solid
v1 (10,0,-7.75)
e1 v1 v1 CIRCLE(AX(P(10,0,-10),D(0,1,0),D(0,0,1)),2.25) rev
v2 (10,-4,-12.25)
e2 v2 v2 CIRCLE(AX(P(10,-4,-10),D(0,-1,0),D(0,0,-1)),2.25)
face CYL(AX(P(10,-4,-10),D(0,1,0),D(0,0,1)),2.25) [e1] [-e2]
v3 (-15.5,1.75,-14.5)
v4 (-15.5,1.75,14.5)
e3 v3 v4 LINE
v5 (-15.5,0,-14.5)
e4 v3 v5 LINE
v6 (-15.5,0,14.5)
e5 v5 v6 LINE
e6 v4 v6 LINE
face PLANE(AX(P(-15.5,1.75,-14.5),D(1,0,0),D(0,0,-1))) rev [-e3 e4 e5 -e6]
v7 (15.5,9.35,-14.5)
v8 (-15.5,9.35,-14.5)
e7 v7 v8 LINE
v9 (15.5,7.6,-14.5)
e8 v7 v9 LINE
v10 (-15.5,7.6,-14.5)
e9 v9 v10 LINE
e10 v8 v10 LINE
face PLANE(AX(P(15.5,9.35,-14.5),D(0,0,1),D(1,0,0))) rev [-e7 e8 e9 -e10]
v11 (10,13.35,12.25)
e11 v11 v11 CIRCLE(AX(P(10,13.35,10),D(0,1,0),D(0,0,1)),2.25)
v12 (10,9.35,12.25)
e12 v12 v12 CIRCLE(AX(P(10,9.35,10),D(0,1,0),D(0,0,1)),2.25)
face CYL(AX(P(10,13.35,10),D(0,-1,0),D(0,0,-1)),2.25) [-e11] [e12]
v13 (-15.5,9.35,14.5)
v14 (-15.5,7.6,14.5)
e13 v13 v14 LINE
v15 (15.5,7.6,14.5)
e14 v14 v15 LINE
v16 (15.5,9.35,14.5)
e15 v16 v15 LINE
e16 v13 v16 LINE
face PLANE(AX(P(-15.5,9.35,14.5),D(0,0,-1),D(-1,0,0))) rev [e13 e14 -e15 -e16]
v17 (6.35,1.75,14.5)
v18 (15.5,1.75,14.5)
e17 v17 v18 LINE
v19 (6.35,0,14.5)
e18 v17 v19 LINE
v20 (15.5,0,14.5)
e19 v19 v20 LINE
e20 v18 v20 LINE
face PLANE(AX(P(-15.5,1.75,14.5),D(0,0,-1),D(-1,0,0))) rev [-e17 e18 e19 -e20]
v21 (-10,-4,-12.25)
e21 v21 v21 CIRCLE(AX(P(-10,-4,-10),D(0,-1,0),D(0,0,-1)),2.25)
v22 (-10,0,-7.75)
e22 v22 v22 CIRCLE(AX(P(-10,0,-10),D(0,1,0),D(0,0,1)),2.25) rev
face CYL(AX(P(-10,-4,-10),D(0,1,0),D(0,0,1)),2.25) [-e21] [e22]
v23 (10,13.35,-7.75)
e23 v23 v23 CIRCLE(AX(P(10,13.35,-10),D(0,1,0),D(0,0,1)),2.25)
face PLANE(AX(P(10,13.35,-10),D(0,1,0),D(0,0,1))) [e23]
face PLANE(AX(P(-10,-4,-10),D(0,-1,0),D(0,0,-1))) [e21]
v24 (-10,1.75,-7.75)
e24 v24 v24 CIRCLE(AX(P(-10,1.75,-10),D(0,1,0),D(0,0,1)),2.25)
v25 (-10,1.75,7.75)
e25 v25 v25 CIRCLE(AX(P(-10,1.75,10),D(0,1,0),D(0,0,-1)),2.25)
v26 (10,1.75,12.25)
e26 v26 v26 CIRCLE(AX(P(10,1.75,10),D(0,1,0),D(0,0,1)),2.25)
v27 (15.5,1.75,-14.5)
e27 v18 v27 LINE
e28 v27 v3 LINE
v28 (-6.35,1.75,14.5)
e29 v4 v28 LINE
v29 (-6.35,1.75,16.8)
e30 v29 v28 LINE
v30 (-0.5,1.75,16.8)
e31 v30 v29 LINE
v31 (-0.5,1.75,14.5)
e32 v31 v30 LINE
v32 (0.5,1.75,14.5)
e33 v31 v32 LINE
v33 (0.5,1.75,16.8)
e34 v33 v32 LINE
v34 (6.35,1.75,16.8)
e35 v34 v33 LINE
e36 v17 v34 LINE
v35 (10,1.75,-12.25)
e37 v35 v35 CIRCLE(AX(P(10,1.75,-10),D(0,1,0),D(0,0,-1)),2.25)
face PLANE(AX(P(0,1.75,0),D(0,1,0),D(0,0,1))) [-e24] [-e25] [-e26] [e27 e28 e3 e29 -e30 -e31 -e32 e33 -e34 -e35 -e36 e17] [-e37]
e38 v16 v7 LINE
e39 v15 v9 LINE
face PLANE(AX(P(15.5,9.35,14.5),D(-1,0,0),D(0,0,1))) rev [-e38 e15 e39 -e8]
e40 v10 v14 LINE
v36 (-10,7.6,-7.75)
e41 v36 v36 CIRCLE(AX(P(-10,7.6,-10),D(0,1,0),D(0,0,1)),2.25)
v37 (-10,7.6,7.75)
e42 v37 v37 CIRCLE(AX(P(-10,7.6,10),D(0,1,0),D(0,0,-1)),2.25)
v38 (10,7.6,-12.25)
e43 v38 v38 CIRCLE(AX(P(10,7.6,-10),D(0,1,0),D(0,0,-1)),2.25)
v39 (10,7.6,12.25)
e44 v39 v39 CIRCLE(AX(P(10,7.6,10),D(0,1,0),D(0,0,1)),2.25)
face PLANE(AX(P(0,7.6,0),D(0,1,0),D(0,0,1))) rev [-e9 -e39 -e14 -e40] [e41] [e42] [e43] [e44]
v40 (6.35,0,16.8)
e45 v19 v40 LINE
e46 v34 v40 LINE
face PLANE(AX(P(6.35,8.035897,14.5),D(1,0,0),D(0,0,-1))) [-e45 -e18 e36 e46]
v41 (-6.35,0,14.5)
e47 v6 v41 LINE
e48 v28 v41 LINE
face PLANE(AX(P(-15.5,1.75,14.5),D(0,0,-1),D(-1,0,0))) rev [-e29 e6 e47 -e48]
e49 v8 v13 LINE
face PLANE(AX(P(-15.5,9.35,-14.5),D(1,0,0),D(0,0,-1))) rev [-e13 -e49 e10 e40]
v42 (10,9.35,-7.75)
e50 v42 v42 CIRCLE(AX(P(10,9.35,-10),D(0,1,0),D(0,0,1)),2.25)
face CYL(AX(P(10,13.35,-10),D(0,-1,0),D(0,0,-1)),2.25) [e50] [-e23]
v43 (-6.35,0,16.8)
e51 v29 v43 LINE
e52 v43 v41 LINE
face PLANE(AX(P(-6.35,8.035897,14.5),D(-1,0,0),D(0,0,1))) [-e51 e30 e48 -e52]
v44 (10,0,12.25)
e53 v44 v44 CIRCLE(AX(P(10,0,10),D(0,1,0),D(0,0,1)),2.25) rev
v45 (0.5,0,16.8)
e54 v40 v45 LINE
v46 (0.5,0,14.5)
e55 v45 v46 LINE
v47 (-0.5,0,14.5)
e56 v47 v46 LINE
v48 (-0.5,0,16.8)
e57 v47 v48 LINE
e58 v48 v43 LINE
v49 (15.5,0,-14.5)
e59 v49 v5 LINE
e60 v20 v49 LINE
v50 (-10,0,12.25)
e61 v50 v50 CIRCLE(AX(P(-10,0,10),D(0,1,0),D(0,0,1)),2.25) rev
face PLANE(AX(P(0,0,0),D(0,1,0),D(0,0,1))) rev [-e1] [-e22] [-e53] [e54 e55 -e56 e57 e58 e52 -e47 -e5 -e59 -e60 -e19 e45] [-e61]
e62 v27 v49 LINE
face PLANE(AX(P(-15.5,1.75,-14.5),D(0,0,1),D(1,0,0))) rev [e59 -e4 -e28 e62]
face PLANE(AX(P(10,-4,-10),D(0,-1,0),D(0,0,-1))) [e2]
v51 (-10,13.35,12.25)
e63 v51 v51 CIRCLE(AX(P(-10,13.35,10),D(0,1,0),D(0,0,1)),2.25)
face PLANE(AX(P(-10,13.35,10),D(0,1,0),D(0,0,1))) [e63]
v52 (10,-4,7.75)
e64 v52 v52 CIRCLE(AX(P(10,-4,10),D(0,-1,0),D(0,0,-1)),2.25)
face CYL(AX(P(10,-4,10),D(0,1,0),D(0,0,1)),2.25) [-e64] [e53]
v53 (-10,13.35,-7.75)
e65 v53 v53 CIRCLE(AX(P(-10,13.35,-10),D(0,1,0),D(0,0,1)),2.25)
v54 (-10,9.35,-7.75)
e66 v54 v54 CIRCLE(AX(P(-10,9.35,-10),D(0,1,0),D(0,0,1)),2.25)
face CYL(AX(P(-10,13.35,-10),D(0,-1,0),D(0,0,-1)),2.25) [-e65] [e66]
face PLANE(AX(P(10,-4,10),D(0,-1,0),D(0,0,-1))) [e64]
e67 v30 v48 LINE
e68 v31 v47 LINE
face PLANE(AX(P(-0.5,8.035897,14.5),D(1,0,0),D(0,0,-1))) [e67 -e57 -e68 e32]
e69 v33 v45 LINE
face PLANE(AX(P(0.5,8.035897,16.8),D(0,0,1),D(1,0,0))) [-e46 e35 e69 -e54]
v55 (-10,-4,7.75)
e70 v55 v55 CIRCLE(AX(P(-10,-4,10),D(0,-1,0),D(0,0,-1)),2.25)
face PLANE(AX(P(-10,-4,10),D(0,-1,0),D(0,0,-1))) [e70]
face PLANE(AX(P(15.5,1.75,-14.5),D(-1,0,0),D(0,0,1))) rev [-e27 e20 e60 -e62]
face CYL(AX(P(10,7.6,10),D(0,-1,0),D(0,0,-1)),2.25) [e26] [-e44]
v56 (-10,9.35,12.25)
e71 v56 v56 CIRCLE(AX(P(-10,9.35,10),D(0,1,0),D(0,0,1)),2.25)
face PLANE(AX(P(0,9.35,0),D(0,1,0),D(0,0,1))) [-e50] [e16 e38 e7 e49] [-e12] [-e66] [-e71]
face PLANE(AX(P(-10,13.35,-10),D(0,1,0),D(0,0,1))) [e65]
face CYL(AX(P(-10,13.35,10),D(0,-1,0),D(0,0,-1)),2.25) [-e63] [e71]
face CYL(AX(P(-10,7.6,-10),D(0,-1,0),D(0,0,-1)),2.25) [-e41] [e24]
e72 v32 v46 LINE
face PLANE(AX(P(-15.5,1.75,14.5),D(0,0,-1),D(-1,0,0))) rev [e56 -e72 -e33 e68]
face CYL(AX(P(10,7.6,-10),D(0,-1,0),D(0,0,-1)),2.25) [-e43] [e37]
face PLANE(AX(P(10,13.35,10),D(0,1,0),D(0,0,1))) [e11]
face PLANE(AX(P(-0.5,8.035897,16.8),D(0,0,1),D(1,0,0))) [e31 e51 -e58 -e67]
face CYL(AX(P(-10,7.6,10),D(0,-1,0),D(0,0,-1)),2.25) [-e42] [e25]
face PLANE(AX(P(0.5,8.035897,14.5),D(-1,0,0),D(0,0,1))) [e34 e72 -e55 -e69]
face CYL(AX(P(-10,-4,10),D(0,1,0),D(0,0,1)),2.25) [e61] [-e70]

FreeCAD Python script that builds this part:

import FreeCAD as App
import Part
import Sketcher

V = App.Vector


def add_polygon(sketch, points):
    """Adds a closed chain of lines whose ends are joined by coincident constraints."""
    first, n = sketch.GeometryCount, len(points)
    for a, b in zip(points, points[1:] + points[:1]):
        sketch.addGeometry(Part.LineSegment(App.Vector(*a, 0), App.Vector(*b, 0)), False)
    for i in range(n):
        sketch.addConstraint(Sketcher.Constraint("Coincident", first + i, 2, first + (i + 1) % n, 1))

doc = App.newDocument("Part")
body = doc.addObject("PartDesign::Body", "Body")

# Sketch on XZ plane
sketch1 = body.newObject("Sketcher::SketchObject", "Sketch")
sketch1.AttachmentSupport = (doc.getObject("XZ_Plane"), [""])
sketch1.MapMode = "FlatFace"
add_polygon(sketch1, [(-16, -14), (-16, 14), (16, 14), (16, -14)])  # lines 0-3
sketch1.addConstraint([
    Sketcher.Constraint("Vertical", 0),
    Sketcher.Constraint("Horizontal", 1),
    Sketcher.Constraint("Vertical", 2),
    Sketcher.Constraint("Horizontal", 3),
    Sketcher.Constraint("Symmetric", 0, 2, 2, 2, -1, 1),
    Sketcher.Constraint("DistanceX", 1, 1, 1, 2, 31.0),
    Sketcher.Constraint("DistanceY", 0, 1, 0, 2, 29.0),
])
pad1 = body.newObject("PartDesign::Pad", "Pad")
pad1.Profile = sketch1
pad1.Length = 1.75
pad1.Reversed = True

# Sketch on XZ plane
sketch2 = body.newObject("Sketcher::SketchObject", "Sketch001")
sketch2.AttachmentSupport = (doc.getObject("XZ_Plane"), [""])
sketch2.MapMode = "FlatFace"
sketch2.AttachmentOffset = App.Placement(V(0, 0, -1.75), App.Rotation())
sketch2.addGeometry([
    Part.Circle(V(-10, -10, 0), V(0, 0, 1), 2.2),
    Part.Circle(V(10, -10, 0), V(0, 0, 1), 2.2),
    Part.Circle(V(10, 10, 0), V(0, 0, 1), 2.2),
    Part.Circle(V(-10, 10, 0), V(0, 0, 1), 2.2),
], False)
sketch2.addConstraint([
    Sketcher.Constraint("Equal", 0, 1),
    Sketcher.Constraint("Equal", 1, 2),
    Sketcher.Constraint("Equal", 2, 3),
    Sketcher.Constraint("Symmetric", 0, 3, 2, 3, -1, 1),
    Sketcher.Constraint("Symmetric", 1, 3, 3, 3, -1, 1),
    Sketcher.Constraint("Symmetric", 0, 3, 1, 3, -2),
    Sketcher.Constraint("Diameter", 0, 4.5),
    Sketcher.Constraint("DistanceX", 0, 3, -1, 1, 10.0),
    Sketcher.Constraint("DistanceY", 0, 3, -1, 1, 10.0),
])
pad2 = body.newObject("PartDesign::Pad", "Pad001")
pad2.Profile = sketch2
pad2.Length = 5.85
pad2.Reversed = True

# Sketch on XZ plane
sketch3 = body.newObject("Sketcher::SketchObject", "Sketch002")
sketch3.AttachmentSupport = (doc.getObject("XZ_Plane"), [""])
sketch3.MapMode = "FlatFace"
sketch3.AttachmentOffset = App.Placement(V(0, 0, -7.6), App.Rotation())
add_polygon(sketch3, [(-16, -14), (-16, 14), (16, 14), (16, -14)])  # lines 0-3
sketch3.addConstraint([
    Sketcher.Constraint("Vertical", 0),
    Sketcher.Constraint("Horizontal", 1),
    Sketcher.Constraint("Vertical", 2),
    Sketcher.Constraint("Horizontal", 3),
    Sketcher.Constraint("Symmetric", 0, 2, 2, 2, -1, 1),
    Sketcher.Constraint("DistanceX", 1, 1, 1, 2, 31.0),
    Sketcher.Constraint("DistanceY", 0, 1, 0, 2, 29.0),
])
pad3 = body.newObject("PartDesign::Pad", "Pad002")
pad3.Profile = sketch3
pad3.Length = 1.75
pad3.Reversed = True

# Sketch on XZ plane
sketch4 = body.newObject("Sketcher::SketchObject", "Sketch003")
sketch4.AttachmentSupport = (doc.getObject("XZ_Plane"), [""])
sketch4.MapMode = "FlatFace"
sketch4.AttachmentOffset = App.Placement(V(0, 0, -9.35), App.Rotation())
sketch4.addGeometry([
    Part.Circle(V(-10, -10, 0), V(0, 0, 1), 2.2),
    Part.Circle(V(10, -10, 0), V(0, 0, 1), 2.2),
    Part.Circle(V(10, 10, 0), V(0, 0, 1), 2.2),
    Part.Circle(V(-10, 10, 0), V(0, 0, 1), 2.2),
], False)
sketch4.addConstraint([
    Sketcher.Constraint("Equal", 0, 1),
    Sketcher.Constraint("Equal", 1, 2),
    Sketcher.Constraint("Equal", 2, 3),
    Sketcher.Constraint("Symmetric", 0, 3, 2, 3, -1, 1),
    Sketcher.Constraint("Symmetric", 1, 3, 3, 3, -1, 1),
    Sketcher.Constraint("Symmetric", 0, 3, 1, 3, -2),
    Sketcher.Constraint("Diameter", 0, 4.5),
    Sketcher.Constraint("DistanceX", 0, 3, -1, 1, 10.0),
    Sketcher.Constraint("DistanceY", 0, 3, -1, 1, 10.0),
])
pad4 = body.newObject("PartDesign::Pad", "Pad003")
pad4.Profile = sketch4
pad4.Length = 4
pad4.Reversed = True

# Sketch on XZ plane
sketch5 = body.newObject("Sketcher::SketchObject", "Sketch004")
sketch5.AttachmentSupport = (doc.getObject("XZ_Plane"), [""])
sketch5.MapMode = "FlatFace"
sketch5.addGeometry([
    Part.Circle(V(10, 10, 0), V(0, 0, 1), 2.2),
    Part.Circle(V(10, -10, 0), V(0, 0, 1), 2.2),
    Part.Circle(V(-10, -10, 0), V(0, 0, 1), 2.2),
    Part.Circle(V(-10, 10, 0), V(0, 0, 1), 2.2),
], False)
sketch5.addConstraint([
    Sketcher.Constraint("Equal", 0, 1),
    Sketcher.Constraint("Equal", 1, 2),
    Sketcher.Constraint("Equal", 2, 3),
    Sketcher.Constraint("Symmetric", 0, 3, 2, 3, -1, 1),
    Sketcher.Constraint("Symmetric", 1, 3, 3, 3, -1, 1),
    Sketcher.Constraint("Symmetric", 1, 3, 2, 3, -2),
    Sketcher.Constraint("Diameter", 0, 4.5),
    Sketcher.Constraint("DistanceX", -1, 1, 0, 3, 10.0),
    Sketcher.Constraint("DistanceY", -1, 1, 0, 3, 10.0),
])
pad5 = body.newObject("PartDesign::Pad", "Pad004")
pad5.Profile = sketch5
pad5.Length = 4

# Sketch on XZ plane
sketch6 = body.newObject("Sketcher::SketchObject", "Sketch005")
sketch6.AttachmentSupport = (doc.getObject("XZ_Plane"), [""])
sketch6.MapMode = "FlatFace"
add_polygon(sketch6, [(0.5, 16.8), (0.5, 14.5), (6.3, 14.5), (6.3, 16.8)])  # lines 0-3
add_polygon(sketch6, [(-6.3, 16.8), (-6.3, 14.5), (-0.5, 14.5), (-0.5, 16.8)])  # lines 4-7
sketch6.addConstraint([
    Sketcher.Constraint("Vertical", 0),
    Sketcher.Constraint("Horizontal", 1),
    Sketcher.Constraint("Vertical", 2),
    Sketcher.Constraint("Horizontal", 3),
    Sketcher.Constraint("Vertical", 4),
    Sketcher.Constraint("Horizontal", 5),
    Sketcher.Constraint("Vertical", 6),
    Sketcher.Constraint("Horizontal", 7),
    Sketcher.Constraint("Symmetric", 1, 2, 4, 2, -2),
    Sketcher.Constraint("Symmetric", 3, 2, 6, 2, -2),
    Sketcher.Constraint("DistanceY", 0, 2, 0, 1, 2.3),
    Sketcher.Constraint("DistanceX", 5, 2, 0, 2, 1.0),
    Sketcher.Constraint("DistanceX", 1, 1, 1, 2, 5.85),
    Sketcher.Constraint("DistanceY", -1, 1, 0, 2, 14.5),
])
pad6 = body.newObject("PartDesign::Pad", "Pad005")
pad6.Profile = sketch6
pad6.Length = 1.75
pad6.Reversed = True

doc.recompute()
